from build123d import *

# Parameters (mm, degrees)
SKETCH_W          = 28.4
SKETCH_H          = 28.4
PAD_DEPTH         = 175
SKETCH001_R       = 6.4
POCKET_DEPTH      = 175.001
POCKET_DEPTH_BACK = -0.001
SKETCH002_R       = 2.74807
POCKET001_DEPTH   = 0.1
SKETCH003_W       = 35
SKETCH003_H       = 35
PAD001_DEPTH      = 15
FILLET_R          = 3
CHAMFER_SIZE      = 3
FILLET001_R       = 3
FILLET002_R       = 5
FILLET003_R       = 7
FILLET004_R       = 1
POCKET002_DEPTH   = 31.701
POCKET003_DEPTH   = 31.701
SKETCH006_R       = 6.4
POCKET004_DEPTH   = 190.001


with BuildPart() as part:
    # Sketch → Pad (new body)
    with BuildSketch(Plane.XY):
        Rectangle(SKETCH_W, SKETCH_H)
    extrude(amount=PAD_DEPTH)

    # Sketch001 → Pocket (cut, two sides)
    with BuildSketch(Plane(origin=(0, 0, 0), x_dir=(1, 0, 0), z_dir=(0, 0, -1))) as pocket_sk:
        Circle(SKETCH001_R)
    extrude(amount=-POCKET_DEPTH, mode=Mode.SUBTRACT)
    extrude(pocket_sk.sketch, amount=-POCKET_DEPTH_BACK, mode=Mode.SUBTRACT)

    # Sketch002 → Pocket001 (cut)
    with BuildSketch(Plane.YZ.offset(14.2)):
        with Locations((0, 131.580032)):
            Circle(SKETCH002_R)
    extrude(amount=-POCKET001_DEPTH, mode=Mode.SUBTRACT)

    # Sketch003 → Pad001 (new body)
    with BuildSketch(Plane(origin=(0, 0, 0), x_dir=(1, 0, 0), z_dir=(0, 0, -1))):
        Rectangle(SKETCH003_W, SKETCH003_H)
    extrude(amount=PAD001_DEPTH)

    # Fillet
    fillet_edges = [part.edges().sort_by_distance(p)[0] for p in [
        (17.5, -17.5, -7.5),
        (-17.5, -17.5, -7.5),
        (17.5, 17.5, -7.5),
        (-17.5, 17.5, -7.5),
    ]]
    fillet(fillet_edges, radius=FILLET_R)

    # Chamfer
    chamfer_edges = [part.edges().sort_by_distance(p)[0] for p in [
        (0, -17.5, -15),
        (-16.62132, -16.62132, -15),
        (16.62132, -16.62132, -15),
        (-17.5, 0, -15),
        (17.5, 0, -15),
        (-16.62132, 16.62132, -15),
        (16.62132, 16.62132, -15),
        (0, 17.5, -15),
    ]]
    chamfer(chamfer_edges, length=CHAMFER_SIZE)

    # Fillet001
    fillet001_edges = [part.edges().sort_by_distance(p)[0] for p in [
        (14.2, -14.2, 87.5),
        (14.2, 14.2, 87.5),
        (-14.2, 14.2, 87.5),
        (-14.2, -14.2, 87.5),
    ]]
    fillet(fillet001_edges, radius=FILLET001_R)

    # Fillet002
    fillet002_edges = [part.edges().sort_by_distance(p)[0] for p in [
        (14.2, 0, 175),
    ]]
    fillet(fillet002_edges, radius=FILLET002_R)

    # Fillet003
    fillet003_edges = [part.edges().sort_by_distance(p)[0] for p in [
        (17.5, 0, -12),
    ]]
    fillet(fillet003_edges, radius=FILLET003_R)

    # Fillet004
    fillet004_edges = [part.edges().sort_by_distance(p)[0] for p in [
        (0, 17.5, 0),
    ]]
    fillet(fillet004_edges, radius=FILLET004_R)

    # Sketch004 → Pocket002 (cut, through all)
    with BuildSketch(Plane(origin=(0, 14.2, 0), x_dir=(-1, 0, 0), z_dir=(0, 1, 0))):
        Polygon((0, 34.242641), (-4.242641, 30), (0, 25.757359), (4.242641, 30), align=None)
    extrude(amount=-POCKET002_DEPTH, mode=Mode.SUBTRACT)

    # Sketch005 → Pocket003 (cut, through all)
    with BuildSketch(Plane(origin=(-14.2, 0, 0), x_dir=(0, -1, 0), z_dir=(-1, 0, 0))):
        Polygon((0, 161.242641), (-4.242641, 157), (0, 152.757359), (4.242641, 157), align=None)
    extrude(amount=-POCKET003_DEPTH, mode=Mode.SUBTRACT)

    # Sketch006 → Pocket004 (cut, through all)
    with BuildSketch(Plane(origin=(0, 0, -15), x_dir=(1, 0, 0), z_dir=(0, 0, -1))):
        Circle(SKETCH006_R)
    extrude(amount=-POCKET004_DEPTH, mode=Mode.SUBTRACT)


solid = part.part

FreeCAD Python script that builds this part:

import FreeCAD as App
import Part
import Sketcher


def edges_at(feature, points):
    """Names of the edges that pass closest to the given points."""
    edges = feature.Shape.Edges
    near = lambda p: min(range(len(edges)), key=lambda i: edges[i].distToShape(Part.Vertex(*p))[0])
    return sorted({f"Edge{near(p) + 1}" for p in points})

doc = App.newDocument("Part")
params = doc.addObject("Spreadsheet::Sheet", "Params")
for row, (alias, value) in enumerate([
    ("sketch1_width", "28.4 mm"),
    ("pad1_length", "175 mm"),
    ("sketch2_diameter", "12.8 mm"),
    ("pocket2_length", "0.1 mm"),
    ("sketch4_width", "35 mm"),
    ("pad2_length", "15 mm"),
    ("fillet_radius", "3 mm"),
    ("chamfer_size", "3 mm"),
    ("fillet2_radius", "3 mm"),
    ("fillet3_radius", "5 mm"),
    ("fillet4_radius", "7 mm"),
    ("fillet5_radius", "1 mm"),
    ("sketch5_length", "6 mm"),
    ("sketch6_length", "6 mm"),
    ("sketch7_diameter", "12.8 mm"),
], start=1):
    params.set(f"A{row}", alias)
    params.set(f"B{row}", "=" + value)
    params.setAlias(f"B{row}", alias)

body = doc.addObject("PartDesign::Body", "Body")

# Sketch on XY plane
sketch1 = doc.addObject("Sketcher::SketchObject", "Sketch")
body.addObject(sketch1)
sketch1.AttachmentSupport = (doc.XY_Plane, [""])
sketch1.MapMode = "FlatFace"
sketch1.addGeometry([
    Part.LineSegment(App.Vector(-14, 14, 0), App.Vector(-14, -14, 0)),
    Part.LineSegment(App.Vector(-14, -14, 0), App.Vector(14, -14, 0)),
    Part.LineSegment(App.Vector(14, -14, 0), App.Vector(14, 14, 0)),
    Part.LineSegment(App.Vector(14, 14, 0), App.Vector(-14, 14, 0)),
], False)
sketch1.addConstraint([
    Sketcher.Constraint("Coincident", 0, 2, 1, 1),
    Sketcher.Constraint("Coincident", 1, 2, 2, 1),
    Sketcher.Constraint("Coincident", 2, 2, 3, 1),
    Sketcher.Constraint("Coincident", 3, 2, 0, 1),
    Sketcher.Constraint("Vertical", 0),
    Sketcher.Constraint("Horizontal", 1),
    Sketcher.Constraint("Vertical", 2),
    Sketcher.Constraint("Horizontal", 3),
    Sketcher.Constraint("Symmetric", 0, 2, 2, 2, -1, 1),
    Sketcher.Constraint("Equal", 3, 0),
    Sketcher.Constraint("DistanceX", 1, 1, 1, 2, 28.4),
])
sketch1.setExpression("Constraints[10]", "Params.sketch1_width")
pad1 = doc.addObject("PartDesign::Pad", "Pad")
body.addObject(pad1)
pad1.Profile = sketch1
pad1.setExpression("Length", "Params.pad1_length")

# Sketch on XY plane
sketch2 = doc.addObject("Sketcher::SketchObject", "Sketch001")
body.addObject(sketch2)
sketch2.AttachmentSupport = (doc.XY_Plane, [""])
sketch2.MapMode = "FlatFace"
sketch2.addGeometry(Part.Circle(App.Vector(0, 0, 0), App.Vector(0, 0, 1), 6), False)
sketch2.addConstraint([
    Sketcher.Constraint("Coincident", 0, 3, -1, 1),
    Sketcher.Constraint("Diameter", 0, 12.8),
])
sketch2.setExpression("Constraints[1]", "Params.sketch2_diameter")
pocket1 = doc.addObject("PartDesign::Pocket", "Pocket")
body.addObject(pocket1)
pocket1.Profile = sketch2
pocket1.Type = "ThroughAll"
pocket1.Midplane = True

# Sketch on YZ plane
sketch3 = doc.addObject("Sketcher::SketchObject", "Sketch002")
body.addObject(sketch3)
sketch3.AttachmentSupport = (doc.YZ_Plane, [""])
sketch3.MapMode = "FlatFace"
sketch3.AttachmentOffset = App.Placement(App.Vector(0, 0, 14.2), App.Rotation())
sketch3.addGeometry(Part.Circle(App.Vector(0, 131.6, 0), App.Vector(0, 0, 1), 2.7), False)
sketch3.addConstraint([
    Sketcher.Constraint("PointOnObject", 0, 3, -2),
    Sketcher.Constraint("Diameter", 0, 5.49614),
    Sketcher.Constraint("DistanceY", -1, 1, 0, 3, 131.580032),
])
pocket2 = doc.addObject("PartDesign::Pocket", "Pocket001")
body.addObject(pocket2)
pocket2.Profile = sketch3
pocket2.setExpression("Length", "Params.pocket2_length")

# Sketch on XY plane
sketch4 = doc.addObject("Sketcher::SketchObject", "Sketch003")
body.addObject(sketch4)
sketch4.AttachmentSupport = (doc.XY_Plane, [""])
sketch4.MapMode = "FlatFace"
sketch4.addGeometry([
    Part.LineSegment(App.Vector(-18, -18, 0), App.Vector(-18, 18, 0)),
    Part.LineSegment(App.Vector(-18, 18, 0), App.Vector(18, 18, 0)),
    Part.LineSegment(App.Vector(18, 18, 0), App.Vector(18, -18, 0)),
    Part.LineSegment(App.Vector(18, -18, 0), App.Vector(-18, -18, 0)),
], False)
sketch4.addConstraint([
    Sketcher.Constraint("Coincident", 0, 2, 1, 1),
    Sketcher.Constraint("Coincident", 1, 2, 2, 1),
    Sketcher.Constraint("Coincident", 2, 2, 3, 1),
    Sketcher.Constraint("Coincident", 3, 2, 0, 1),
    Sketcher.Constraint("Vertical", 0),
    Sketcher.Constraint("Horizontal", 1),
    Sketcher.Constraint("Vertical", 2),
    Sketcher.Constraint("Horizontal", 3),
    Sketcher.Constraint("Symmetric", 0, 2, 2, 2, -1, 1),
    Sketcher.Constraint("Equal", 3, 0),
    Sketcher.Constraint("DistanceX", 1, 1, 1, 2, 35.0),
])
sketch4.setExpression("Constraints[10]", "Params.sketch4_width")
pad2 = doc.addObject("PartDesign::Pad", "Pad001")
body.addObject(pad2)
pad2.Profile = sketch4
pad2.setExpression("Length", "Params.pad2_length")
pad2.Reversed = True
doc.recompute()

fillet = doc.addObject("PartDesign::Fillet", "Fillet")
body.addObject(fillet)
fillet.Base = (pad2, edges_at(pad2, [
    (17.5, -17.5, -7.5),
    (-17.5, -17.5, -7.5),
    (17.5, 17.5, -7.5),
    (-17.5, 17.5, -7.5),
]))
fillet.setExpression("Radius", "Params.fillet_radius")
doc.recompute()

chamfer = doc.addObject("PartDesign::Chamfer", "Chamfer")
body.addObject(chamfer)
chamfer.Base = (fillet, edges_at(fillet, [
    (0, -17.5, -15),
    (-16.621, -16.621, -15),
    (16.621, -16.621, -15),
    (-17.5, 0, -15),
    (17.5, 0, -15),
    (-16.621, 16.621, -15),
    (16.621, 16.621, -15),
    (0, 17.5, -15),
]))
chamfer.setExpression("Size", "Params.chamfer_size")
doc.recompute()

fillet2 = doc.addObject("PartDesign::Fillet", "Fillet001")
body.addObject(fillet2)
fillet2.Base = (chamfer, edges_at(chamfer, [
    (14.2, -14.2, 87.5),
    (14.2, 14.2, 87.5),
    (-14.2, 14.2, 87.5),
    (-14.2, -14.2, 87.5),
]))
fillet2.setExpression("Radius", "Params.fillet2_radius")
doc.recompute()

fillet3 = doc.addObject("PartDesign::Fillet", "Fillet002")
body.addObject(fillet3)
fillet3.Base = (fillet2, edges_at(fillet2, [(14.2, 0, 175)]))
fillet3.setExpression("Radius", "Params.fillet3_radius")
doc.recompute()

fillet4 = doc.addObject("PartDesign::Fillet", "Fillet003")
body.addObject(fillet4)
fillet4.Base = (fillet3, edges_at(fillet3, [(17.5, 0, -12)]))
fillet4.setExpression("Radius", "Params.fillet4_radius")
doc.recompute()

fillet5 = doc.addObject("PartDesign::Fillet", "Fillet004")
body.addObject(fillet5)
fillet5.Base = (fillet4, edges_at(fillet4, [(0, 17.5, 0)]))
fillet5.setExpression("Radius", "Params.fillet5_radius")

# Sketch on XZ plane
sketch5 = doc.addObject("Sketcher::SketchObject", "Sketch004")
body.addObject(sketch5)
sketch5.AttachmentSupport = (doc.XZ_Plane, [""])
sketch5.MapMode = "FlatFace"
sketch5.AttachmentOffset = App.Placement(App.Vector(0, 0, -14.2), App.Rotation())
sketch5.addGeometry([
    Part.LineSegment(App.Vector(0, 34, 0), App.Vector(4, 30, 0)),
    Part.LineSegment(App.Vector(4, 30, 0), App.Vector(0, 26, 0)),
    Part.LineSegment(App.Vector(0, 26, 0), App.Vector(-4, 30, 0)),
    Part.LineSegment(App.Vector(-4, 30, 0), App.Vector(0, 34, 0)),
], False)
sketch5.addConstraint([
    Sketcher.Constraint("Coincident", 0, 2, 1, 1),
    Sketcher.Constraint("Coincident", 1, 2, 2, 1),
    Sketcher.Constraint("Coincident", 2, 2, 3, 1),
    Sketcher.Constraint("Coincident", 3, 2, 0, 1),
    Sketcher.Constraint("Symmetric", 0, 2, 2, 2, -2),
    Sketcher.Constraint("PointOnObject", 1, 2, -2),
    Sketcher.Constraint("PointOnObject", 3, 2, -2),
    Sketcher.Constraint("Perpendicular", 0, 1),
    Sketcher.Constraint("Perpendicular", 1, 2),
    Sketcher.Constraint("Distance", 0, 6.0),
    Sketcher.Constraint("DistanceY", -1, 1, 0, 2, 30.0),
])
sketch5.setExpression("Constraints[9]", "Params.sketch5_length")
pocket3 = doc.addObject("PartDesign::Pocket", "Pocket002")
body.addObject(pocket3)
pocket3.Profile = sketch5
pocket3.Type = "ThroughAll"
pocket3.Reversed = True

# Sketch on YZ plane
sketch6 = doc.addObject("Sketcher::SketchObject", "Sketch005")
body.addObject(sketch6)
sketch6.AttachmentSupport = (doc.YZ_Plane, [""])
sketch6.MapMode = "FlatFace"
sketch6.AttachmentOffset = App.Placement(App.Vector(0, 0, -14.2), App.Rotation())
sketch6.addGeometry([
    Part.LineSegment(App.Vector(0, 161, 0), App.Vector(4, 157, 0)),
    Part.LineSegment(App.Vector(4, 157, 0), App.Vector(0, 153, 0)),
    Part.LineSegment(App.Vector(0, 153, 0), App.Vector(-4, 157, 0)),
    Part.LineSegment(App.Vector(-4, 157, 0), App.Vector(0, 161, 0)),
], False)
sketch6.addConstraint([
    Sketcher.Constraint("Coincident", 0, 2, 1, 1),
    Sketcher.Constraint("Coincident", 1, 2, 2, 1),
    Sketcher.Constraint("Coincident", 2, 2, 3, 1),
    Sketcher.Constraint("Coincident", 3, 2, 0, 1),
    Sketcher.Constraint("Symmetric", 0, 2, 2, 2, -2),
    Sketcher.Constraint("PointOnObject", 1, 2, -2),
    Sketcher.Constraint("PointOnObject", 3, 2, -2),
    Sketcher.Constraint("Perpendicular", 0, 1),
    Sketcher.Constraint("Perpendicular", 1, 2),
    Sketcher.Constraint("Distance", 0, 6.0),
    Sketcher.Constraint("DistanceY", -1, 1, 0, 2, 157.0),
])
sketch6.setExpression("Constraints[9]", "Params.sketch6_length")
pocket4 = doc.addObject("PartDesign::Pocket", "Pocket003")
body.addObject(pocket4)
pocket4.Profile = sketch6
pocket4.Type = "ThroughAll"
pocket4.Reversed = True

# Sketch on XY plane
sketch7 = doc.addObject("Sketcher::SketchObject", "Sketch006")
body.addObject(sketch7)
sketch7.AttachmentSupport = (doc.XY_Plane, [""])
sketch7.MapMode = "FlatFace"
sketch7.AttachmentOffset = App.Placement(App.Vector(0, 0, -15), App.Rotation())
sketch7.addGeometry(Part.Circle(App.Vector(0, 0, 0), App.Vector(0, 0, 1), 6), False)
sketch7.addConstraint([
    Sketcher.Constraint("Coincident", 0, 3, -1, 1),
    Sketcher.Constraint("Diameter", 0, 12.8),
])
sketch7.setExpression("Constraints[1]", "Params.sketch7_diameter")
pocket5 = doc.addObject("PartDesign::Pocket", "Pocket004")
body.addObject(pocket5)
pocket5.Profile = sketch7
pocket5.Type = "ThroughAll"
pocket5.Reversed = True

doc.recompute()
